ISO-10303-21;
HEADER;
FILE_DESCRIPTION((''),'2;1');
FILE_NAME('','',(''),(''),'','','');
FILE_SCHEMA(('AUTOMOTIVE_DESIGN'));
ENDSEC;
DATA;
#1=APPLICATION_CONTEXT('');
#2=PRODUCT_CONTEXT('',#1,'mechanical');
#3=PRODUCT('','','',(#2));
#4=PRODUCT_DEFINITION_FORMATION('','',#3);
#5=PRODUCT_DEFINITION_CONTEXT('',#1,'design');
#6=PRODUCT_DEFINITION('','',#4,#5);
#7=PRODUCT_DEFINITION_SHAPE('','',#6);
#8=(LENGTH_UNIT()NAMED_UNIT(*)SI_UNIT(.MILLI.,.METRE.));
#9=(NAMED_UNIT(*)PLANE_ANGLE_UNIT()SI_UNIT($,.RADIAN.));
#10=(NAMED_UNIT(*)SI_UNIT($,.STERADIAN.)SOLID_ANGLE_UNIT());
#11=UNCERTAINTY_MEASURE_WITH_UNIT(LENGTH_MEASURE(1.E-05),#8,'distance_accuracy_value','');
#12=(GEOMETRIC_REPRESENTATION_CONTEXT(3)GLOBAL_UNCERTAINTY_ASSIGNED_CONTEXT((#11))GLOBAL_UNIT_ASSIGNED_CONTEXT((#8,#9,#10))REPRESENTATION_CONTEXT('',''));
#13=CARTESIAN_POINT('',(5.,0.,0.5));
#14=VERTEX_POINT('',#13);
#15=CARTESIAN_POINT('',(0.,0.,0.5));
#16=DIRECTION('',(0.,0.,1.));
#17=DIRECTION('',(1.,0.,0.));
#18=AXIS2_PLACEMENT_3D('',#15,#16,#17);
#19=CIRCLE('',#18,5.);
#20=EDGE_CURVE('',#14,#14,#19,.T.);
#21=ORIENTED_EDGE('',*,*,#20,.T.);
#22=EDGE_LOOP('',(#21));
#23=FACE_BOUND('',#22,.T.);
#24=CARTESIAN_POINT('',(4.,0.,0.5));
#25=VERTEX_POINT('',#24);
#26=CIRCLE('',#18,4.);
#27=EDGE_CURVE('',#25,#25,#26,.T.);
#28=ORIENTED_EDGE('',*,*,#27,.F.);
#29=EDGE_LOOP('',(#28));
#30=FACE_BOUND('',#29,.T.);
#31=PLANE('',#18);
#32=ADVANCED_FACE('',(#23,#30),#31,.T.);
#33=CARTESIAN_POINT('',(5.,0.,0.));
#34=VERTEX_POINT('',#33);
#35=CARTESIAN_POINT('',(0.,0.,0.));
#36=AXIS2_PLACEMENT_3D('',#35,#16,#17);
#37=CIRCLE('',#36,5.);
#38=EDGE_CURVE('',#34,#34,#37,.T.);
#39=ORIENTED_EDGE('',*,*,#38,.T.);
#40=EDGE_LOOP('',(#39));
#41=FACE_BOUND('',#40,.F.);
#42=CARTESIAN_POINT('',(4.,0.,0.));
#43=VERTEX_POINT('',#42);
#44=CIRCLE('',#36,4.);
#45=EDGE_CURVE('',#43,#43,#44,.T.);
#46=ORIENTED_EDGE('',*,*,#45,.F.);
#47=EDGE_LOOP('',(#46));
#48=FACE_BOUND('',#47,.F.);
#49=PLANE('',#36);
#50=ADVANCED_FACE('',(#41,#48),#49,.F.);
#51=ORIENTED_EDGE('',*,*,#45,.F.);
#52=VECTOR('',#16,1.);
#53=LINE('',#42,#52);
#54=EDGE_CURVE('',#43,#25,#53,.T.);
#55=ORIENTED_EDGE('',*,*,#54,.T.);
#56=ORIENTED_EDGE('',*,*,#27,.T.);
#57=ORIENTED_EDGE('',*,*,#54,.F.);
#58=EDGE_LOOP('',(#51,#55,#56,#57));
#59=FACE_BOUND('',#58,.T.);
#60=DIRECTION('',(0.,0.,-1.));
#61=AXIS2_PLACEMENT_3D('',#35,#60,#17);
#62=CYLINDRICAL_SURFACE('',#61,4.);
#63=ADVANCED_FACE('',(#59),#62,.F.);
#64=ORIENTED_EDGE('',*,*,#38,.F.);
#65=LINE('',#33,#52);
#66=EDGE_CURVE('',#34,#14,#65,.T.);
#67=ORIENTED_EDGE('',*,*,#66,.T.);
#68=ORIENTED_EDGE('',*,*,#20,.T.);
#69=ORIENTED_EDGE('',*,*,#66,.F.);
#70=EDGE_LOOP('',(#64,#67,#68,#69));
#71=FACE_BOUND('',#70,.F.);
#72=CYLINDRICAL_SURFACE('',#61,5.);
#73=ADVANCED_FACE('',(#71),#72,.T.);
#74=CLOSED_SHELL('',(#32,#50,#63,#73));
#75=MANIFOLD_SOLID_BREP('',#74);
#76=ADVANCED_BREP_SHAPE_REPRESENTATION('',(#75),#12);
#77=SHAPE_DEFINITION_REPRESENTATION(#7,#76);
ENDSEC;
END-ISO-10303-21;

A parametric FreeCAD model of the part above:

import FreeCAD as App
import Part
import Sketcher
from FreeCAD import Vector

doc = App.newDocument("Part")
body = doc.addObject("PartDesign::Body", "Body")

# Sketch on XY plane
sketch1 = body.newObject("Sketcher::SketchObject", "Sketch")
sketch1.AttachmentSupport = (doc.getObject("XY_Plane"), [""])
sketch1.MapMode = "FlatFace"
sketch1.addGeometry(Part.Circle(Vector(0, 0, 0), Vector(0, 0, 1), 5), False)
sketch1.addGeometry(Part.Circle(Vector(0, 0, 0), Vector(0, 0, 1), 4), False)
sketch1.addConstraint(Sketcher.Constraint("Coincident", 0, 3, -1, 1))
sketch1.addConstraint(Sketcher.Constraint("Coincident", 1, 3, -1, 1))
sketch1.addConstraint(Sketcher.Constraint("Diameter", 0, 10.0))
sketch1.addConstraint(Sketcher.Constraint("Diameter", 1, 8.0))
pad1 = body.newObject("PartDesign::Pad", "Pad")
pad1.Profile = sketch1
pad1.Length = 0.5

doc.recompute()
